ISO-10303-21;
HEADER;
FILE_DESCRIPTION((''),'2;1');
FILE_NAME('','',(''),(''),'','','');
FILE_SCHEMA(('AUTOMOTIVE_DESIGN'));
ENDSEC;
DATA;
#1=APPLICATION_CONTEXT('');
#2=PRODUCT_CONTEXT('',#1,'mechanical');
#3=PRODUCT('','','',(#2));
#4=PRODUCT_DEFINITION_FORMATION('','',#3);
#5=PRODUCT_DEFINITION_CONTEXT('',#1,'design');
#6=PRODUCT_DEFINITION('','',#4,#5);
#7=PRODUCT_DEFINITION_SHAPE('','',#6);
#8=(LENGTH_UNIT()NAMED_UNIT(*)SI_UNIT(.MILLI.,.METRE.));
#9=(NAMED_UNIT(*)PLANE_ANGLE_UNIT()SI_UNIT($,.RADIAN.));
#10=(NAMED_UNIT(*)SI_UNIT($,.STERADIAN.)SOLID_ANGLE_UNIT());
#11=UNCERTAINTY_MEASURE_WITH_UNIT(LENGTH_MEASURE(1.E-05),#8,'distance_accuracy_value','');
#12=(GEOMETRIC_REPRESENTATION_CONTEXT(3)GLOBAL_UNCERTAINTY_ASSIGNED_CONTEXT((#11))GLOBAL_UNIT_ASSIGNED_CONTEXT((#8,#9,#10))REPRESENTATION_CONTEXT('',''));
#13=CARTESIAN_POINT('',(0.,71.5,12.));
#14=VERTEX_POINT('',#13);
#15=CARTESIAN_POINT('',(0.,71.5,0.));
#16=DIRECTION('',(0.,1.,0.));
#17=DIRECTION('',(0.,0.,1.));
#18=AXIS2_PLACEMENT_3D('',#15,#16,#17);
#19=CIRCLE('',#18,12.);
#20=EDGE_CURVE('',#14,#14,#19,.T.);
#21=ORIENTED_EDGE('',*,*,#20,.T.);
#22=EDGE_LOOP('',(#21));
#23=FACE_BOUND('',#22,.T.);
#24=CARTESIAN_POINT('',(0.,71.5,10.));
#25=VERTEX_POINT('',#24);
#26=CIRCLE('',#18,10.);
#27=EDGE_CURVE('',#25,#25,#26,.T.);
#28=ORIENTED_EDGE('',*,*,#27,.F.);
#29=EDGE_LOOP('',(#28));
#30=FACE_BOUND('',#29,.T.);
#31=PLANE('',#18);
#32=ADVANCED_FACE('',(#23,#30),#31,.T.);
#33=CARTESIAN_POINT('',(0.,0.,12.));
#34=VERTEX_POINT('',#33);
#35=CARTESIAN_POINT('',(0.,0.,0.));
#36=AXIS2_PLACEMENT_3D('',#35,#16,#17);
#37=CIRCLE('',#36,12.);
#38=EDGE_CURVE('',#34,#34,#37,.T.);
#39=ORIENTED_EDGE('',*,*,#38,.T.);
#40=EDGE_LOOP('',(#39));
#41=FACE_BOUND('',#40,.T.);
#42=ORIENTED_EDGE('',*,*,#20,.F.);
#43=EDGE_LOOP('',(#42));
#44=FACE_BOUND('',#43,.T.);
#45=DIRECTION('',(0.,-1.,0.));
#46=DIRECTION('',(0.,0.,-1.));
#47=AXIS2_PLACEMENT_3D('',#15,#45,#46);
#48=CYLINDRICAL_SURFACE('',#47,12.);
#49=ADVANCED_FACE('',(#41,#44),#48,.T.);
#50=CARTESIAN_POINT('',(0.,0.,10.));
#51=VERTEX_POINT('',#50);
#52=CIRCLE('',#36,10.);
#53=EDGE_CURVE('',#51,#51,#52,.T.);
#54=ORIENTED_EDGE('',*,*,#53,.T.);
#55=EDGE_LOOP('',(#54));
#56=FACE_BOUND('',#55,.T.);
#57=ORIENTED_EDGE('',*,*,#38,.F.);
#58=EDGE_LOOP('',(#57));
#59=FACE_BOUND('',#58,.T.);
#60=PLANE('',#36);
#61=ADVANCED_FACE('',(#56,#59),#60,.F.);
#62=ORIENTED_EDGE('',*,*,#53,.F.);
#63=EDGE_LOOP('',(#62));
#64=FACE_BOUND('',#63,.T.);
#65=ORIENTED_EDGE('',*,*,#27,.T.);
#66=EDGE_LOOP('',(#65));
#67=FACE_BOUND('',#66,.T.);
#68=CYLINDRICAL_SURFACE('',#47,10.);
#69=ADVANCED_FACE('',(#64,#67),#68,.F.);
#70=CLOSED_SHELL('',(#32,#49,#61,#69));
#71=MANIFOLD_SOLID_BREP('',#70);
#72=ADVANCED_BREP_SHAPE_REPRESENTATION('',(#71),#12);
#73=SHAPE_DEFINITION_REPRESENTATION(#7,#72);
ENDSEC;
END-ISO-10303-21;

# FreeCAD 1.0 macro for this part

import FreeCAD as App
import Part
import Sketcher

V = App.Vector
Q = App.Units.Quantity

doc = App.newDocument("Part")
body = doc.addObject("PartDesign::Body", "Body")

# Sketch on XZ plane
sketch1 = doc.addObject("Sketcher::SketchObject", "Sketch")
body.addObject(sketch1)
sketch1.AttachmentSupport = (doc.XZ_Plane, [""])
sketch1.MapMode = "FlatFace"
sketch1.addGeometry(Part.Circle(V(0, 0, 0), V(0, 0, 1), 12), False)
sketch1.addGeometry(Part.Circle(V(0, 0, 0), V(0, 0, 1), 10), False)
sketch1.addConstraint(Sketcher.Constraint("Coincident", 0, 3, -1, 1))
sketch1.addConstraint(Sketcher.Constraint("Coincident", 1, 3, -1, 1))
sketch1.addConstraint(Sketcher.Constraint("Diameter", 0, Q("24 mm")))
sketch1.addConstraint(Sketcher.Constraint("Diameter", 1, Q("20 mm")))
pad1 = doc.addObject("PartDesign::Pad", "Pad")
body.addObject(pad1)
pad1.Profile = sketch1
pad1.Length = 71.5
pad1.Reversed = True

doc.recompute()
